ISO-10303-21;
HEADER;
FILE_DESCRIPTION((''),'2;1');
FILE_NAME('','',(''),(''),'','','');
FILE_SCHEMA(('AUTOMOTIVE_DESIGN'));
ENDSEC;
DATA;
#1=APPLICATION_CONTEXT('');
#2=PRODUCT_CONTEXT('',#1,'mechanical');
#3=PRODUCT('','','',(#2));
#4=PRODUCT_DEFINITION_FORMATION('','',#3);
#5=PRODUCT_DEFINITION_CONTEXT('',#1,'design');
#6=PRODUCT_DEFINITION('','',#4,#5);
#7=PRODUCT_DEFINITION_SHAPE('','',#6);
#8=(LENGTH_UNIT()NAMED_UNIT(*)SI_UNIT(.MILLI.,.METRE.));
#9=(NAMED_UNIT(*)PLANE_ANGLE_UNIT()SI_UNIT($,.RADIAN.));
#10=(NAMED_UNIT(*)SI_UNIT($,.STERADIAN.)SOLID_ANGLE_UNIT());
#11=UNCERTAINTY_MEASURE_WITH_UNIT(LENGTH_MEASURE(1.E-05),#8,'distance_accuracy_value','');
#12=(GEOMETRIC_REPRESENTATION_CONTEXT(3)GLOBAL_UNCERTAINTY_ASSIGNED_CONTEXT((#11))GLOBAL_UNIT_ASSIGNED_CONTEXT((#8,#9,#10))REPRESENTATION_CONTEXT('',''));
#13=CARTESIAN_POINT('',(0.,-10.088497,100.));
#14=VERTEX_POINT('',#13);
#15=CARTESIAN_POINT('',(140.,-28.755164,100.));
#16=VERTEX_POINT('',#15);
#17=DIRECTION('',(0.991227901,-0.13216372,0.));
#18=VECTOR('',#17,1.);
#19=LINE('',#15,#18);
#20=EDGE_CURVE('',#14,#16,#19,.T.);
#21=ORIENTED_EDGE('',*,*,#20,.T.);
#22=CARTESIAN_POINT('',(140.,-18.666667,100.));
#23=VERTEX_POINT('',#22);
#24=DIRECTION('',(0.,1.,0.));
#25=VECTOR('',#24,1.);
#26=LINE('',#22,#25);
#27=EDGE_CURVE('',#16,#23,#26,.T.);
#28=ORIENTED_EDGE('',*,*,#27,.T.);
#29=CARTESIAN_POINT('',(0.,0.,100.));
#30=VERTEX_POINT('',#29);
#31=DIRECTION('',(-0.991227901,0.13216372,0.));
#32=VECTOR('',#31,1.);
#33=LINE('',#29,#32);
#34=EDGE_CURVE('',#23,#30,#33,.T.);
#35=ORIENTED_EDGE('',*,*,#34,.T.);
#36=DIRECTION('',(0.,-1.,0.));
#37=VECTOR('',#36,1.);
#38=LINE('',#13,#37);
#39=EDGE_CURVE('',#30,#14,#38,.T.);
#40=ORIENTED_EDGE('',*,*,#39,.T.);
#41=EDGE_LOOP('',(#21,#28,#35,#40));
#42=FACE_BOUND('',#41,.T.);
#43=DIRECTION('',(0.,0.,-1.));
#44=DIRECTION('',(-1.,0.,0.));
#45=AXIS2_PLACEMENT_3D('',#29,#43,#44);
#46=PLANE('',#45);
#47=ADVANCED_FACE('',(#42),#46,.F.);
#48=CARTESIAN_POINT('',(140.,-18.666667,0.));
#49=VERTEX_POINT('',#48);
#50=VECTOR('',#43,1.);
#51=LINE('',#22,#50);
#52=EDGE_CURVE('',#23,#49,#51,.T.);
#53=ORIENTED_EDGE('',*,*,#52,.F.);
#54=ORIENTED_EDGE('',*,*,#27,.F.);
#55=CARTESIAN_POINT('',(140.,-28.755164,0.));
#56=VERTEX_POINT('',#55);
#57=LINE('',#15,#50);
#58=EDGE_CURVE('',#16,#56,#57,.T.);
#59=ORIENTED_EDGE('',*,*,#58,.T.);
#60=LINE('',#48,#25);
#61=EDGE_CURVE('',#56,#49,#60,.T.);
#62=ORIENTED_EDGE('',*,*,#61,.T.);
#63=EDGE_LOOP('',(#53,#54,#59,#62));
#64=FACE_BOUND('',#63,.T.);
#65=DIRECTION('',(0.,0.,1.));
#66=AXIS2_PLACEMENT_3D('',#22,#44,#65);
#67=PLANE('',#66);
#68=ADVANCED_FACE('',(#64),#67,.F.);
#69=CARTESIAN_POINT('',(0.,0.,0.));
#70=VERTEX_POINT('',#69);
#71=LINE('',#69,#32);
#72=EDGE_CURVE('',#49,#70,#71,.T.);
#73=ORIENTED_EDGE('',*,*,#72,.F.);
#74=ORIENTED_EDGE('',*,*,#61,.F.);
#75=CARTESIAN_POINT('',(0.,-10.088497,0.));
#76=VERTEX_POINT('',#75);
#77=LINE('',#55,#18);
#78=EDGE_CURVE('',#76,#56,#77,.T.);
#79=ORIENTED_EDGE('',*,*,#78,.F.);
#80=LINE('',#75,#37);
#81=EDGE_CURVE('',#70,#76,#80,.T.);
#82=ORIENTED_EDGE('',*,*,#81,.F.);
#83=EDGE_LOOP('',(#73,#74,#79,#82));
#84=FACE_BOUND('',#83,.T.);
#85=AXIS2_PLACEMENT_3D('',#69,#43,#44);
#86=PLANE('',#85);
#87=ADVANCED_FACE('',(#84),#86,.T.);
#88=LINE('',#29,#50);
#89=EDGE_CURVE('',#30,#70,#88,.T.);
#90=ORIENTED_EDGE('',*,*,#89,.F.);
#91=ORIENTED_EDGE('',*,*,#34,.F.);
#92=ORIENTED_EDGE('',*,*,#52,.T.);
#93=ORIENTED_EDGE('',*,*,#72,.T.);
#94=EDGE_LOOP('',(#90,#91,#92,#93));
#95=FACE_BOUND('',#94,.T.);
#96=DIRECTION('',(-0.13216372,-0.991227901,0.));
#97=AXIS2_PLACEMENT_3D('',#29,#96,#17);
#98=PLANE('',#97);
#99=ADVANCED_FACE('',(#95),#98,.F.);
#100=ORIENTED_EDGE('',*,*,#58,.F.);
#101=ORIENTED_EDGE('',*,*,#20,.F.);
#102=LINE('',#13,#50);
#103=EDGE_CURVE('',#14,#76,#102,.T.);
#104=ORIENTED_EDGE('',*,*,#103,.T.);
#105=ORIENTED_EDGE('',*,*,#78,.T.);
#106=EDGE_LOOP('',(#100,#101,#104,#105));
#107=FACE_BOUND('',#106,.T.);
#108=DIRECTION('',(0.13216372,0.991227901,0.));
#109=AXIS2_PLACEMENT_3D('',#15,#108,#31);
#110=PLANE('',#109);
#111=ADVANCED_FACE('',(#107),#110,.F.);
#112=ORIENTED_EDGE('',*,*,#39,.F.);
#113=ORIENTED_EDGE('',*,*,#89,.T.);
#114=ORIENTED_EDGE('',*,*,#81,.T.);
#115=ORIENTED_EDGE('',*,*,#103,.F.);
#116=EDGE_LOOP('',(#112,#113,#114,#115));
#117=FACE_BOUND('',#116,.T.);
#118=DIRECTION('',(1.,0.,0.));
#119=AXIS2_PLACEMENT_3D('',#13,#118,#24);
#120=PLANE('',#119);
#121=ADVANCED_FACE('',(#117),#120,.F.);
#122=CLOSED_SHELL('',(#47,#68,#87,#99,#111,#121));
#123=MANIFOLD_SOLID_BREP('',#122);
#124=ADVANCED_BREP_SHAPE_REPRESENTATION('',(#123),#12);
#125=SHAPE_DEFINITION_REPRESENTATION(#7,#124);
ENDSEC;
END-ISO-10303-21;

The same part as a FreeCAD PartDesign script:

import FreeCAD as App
import Part
import Sketcher
from FreeCAD import Vector


def add_polygon(sketch, points):
    """Adds a closed chain of lines whose ends are joined by coincident constraints."""
    first, n = sketch.GeometryCount, len(points)
    for a, b in zip(points, points[1:] + points[:1]):
        sketch.addGeometry(Part.LineSegment(App.Vector(*a, 0), App.Vector(*b, 0)), False)
    for i in range(n):
        sketch.addConstraint(Sketcher.Constraint("Coincident", first + i, 2, first + (i + 1) % n, 1))

doc = App.newDocument("Part")
body = doc.addObject("PartDesign::Body", "Body")

sketch1 = body.newObject("Sketcher::SketchObject", "Sketch")
sketch1.AttachmentSupport = (doc.getObject("XY_Plane"), [""])
sketch1.MapMode = "FlatFace"
add_polygon(sketch1, [(140, -19), (0, 0), (0, -10), (140, -29)])
sketch1.addConstraint([
    Sketcher.Constraint("Vertical", 1),
    Sketcher.Constraint("Vertical", 3),
    Sketcher.Constraint("Coincident", 0, 2, -1, 1),
    Sketcher.Constraint("Parallel", 0, 2),
    Sketcher.Constraint("DistanceX", -1, 1, 2, 2, 140.0),
    Sketcher.Constraint("DistanceY", 1, 2, 1, 1, 10.088497),
    Sketcher.Constraint("DistanceY", 3, 2, 1, 2, 8.578169),
])
pad1 = body.newObject("PartDesign::Pad", "Pad")
pad1.Profile = sketch1
pad1.Length = 100

doc.recompute()
